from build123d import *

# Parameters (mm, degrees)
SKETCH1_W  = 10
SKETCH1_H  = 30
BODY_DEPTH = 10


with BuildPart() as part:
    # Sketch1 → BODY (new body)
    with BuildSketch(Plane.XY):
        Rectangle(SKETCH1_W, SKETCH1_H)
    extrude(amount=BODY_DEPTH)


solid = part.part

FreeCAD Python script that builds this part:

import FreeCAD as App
import Part
import Sketcher
from FreeCAD import Vector

doc = App.newDocument("Part")
body = doc.addObject("PartDesign::Body", "Body")

# Sketch on XY plane
sketch1 = body.newObject("Sketcher::SketchObject", "Sketch")
sketch1.AttachmentSupport = (doc.getObject("XY_Plane"), [""])
sketch1.MapMode = "FlatFace"
sketch1.addGeometry([
    Part.LineSegment(Vector(-5, 15, 0), Vector(-5, -15, 0)),
    Part.LineSegment(Vector(-5, -15, 0), Vector(5, -15, 0)),
    Part.LineSegment(Vector(5, -15, 0), Vector(5, 15, 0)),
    Part.LineSegment(Vector(5, 15, 0), Vector(-5, 15, 0)),
], False)
sketch1.addConstraint([
    Sketcher.Constraint("Coincident", 0, 2, 1, 1),
    Sketcher.Constraint("Coincident", 1, 2, 2, 1),
    Sketcher.Constraint("Coincident", 2, 2, 3, 1),
    Sketcher.Constraint("Coincident", 3, 2, 0, 1),
    Sketcher.Constraint("Vertical", 0),
    Sketcher.Constraint("Horizontal", 1),
    Sketcher.Constraint("Vertical", 2),
    Sketcher.Constraint("Horizontal", 3),
    Sketcher.Constraint("Symmetric", 0, 2, 2, 2, -1, 1),
    Sketcher.Constraint("DistanceX", 1, 1, 1, 2, 10.0),
    Sketcher.Constraint("DistanceY", 0, 2, 0, 1, 30.0),
])
pad1 = body.newObject("PartDesign::Pad", "Pad")
pad1.Profile = sketch1
pad1.Length = 10

doc.recompute()
